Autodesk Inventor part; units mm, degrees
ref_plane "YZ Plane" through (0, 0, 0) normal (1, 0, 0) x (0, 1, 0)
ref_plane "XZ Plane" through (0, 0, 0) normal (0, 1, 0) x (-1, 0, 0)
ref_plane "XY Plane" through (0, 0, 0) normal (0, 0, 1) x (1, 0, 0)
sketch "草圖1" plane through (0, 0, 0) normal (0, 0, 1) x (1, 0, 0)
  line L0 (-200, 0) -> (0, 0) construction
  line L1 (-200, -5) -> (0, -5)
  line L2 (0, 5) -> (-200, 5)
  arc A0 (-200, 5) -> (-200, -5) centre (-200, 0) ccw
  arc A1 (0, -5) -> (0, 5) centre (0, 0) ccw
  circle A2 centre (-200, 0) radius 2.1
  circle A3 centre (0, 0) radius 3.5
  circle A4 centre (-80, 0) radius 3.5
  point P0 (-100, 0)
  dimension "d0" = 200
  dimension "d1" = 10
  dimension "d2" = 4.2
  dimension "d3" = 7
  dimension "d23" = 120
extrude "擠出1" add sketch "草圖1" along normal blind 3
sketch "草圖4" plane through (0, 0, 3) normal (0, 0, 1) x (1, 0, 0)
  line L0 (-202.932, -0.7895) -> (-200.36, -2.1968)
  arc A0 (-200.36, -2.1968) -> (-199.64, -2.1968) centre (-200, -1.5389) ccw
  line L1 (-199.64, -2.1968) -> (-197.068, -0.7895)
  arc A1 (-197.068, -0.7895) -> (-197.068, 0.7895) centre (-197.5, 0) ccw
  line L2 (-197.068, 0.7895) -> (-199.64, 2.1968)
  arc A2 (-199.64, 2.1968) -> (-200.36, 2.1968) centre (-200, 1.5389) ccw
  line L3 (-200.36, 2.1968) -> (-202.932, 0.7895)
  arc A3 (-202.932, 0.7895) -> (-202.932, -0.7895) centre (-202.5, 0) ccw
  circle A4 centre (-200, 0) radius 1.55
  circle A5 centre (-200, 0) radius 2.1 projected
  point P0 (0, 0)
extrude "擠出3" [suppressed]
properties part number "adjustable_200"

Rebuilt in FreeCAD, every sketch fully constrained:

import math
import FreeCAD as App
import Part
import Sketcher

doc = App.newDocument("Part")
params = doc.addObject("Spreadsheet::Sheet", "Params")
for row, (alias, value) in enumerate([
    ("sketch1_diameter", "7 mm"),
    ("sketch1_radius", "5 mm"),
    ("sketch1_diameter2", "4.2 mm"),
    ("sketch1_width", "200 mm"),
    ("pad1_length", "3 mm"),
], start=1):
    params.set(f"A{row}", alias)
    params.set(f"B{row}", "=" + value)
    params.setAlias(f"B{row}", alias)

body = doc.addObject("PartDesign::Body", "Body")

# Sketch on XY plane
sketch1 = doc.addObject("Sketcher::SketchObject", "Sketch")
body.addObject(sketch1)
sketch1.AttachmentSupport = (doc.XY_Plane, [""])
sketch1.MapMode = "FlatFace"
sketch1.addGeometry(Part.ArcOfCircle(Part.Circle(App.Vector(-200, 0, 0), App.Vector(0, 0, 1), 5), math.radians(90), math.radians(270)), False)
sketch1.addGeometry(Part.LineSegment(App.Vector(-200, -5, 0), App.Vector(0, -5, 0)), False)
sketch1.addGeometry(Part.ArcOfCircle(Part.Circle(App.Vector(0, 0, 0), App.Vector(0, 0, 1), 5), math.radians(-90), math.radians(90)), False)
sketch1.addGeometry(Part.LineSegment(App.Vector(0, 5, 0), App.Vector(-200, 5, 0)), False)
sketch1.addGeometry(Part.Circle(App.Vector(-200, 0, 0), App.Vector(0, 0, 1), 2.1), False)
sketch1.addGeometry(Part.Circle(App.Vector(-80, 0, 0), App.Vector(0, 0, 1), 3.5), False)
sketch1.addGeometry(Part.Circle(App.Vector(0, 0, 0), App.Vector(0, 0, 1), 3.5), False)
sketch1.addConstraint(Sketcher.Constraint("Tangent", 0, 2, 1, 1))
sketch1.addConstraint(Sketcher.Constraint("Tangent", 1, 2, 2, 1))
sketch1.addConstraint(Sketcher.Constraint("Tangent", 2, 2, 3, 1))
sketch1.addConstraint(Sketcher.Constraint("Tangent", 3, 2, 0, 1))
sketch1.addConstraint(Sketcher.Constraint("Horizontal", 1))
sketch1.addConstraint(Sketcher.Constraint("Horizontal", 3))
sketch1.addConstraint(Sketcher.Constraint("Coincident", 2, 3, -1, 1))
sketch1.addConstraint(Sketcher.Constraint("Coincident", 6, 3, -1, 1))
sketch1.addConstraint(Sketcher.Constraint("Coincident", 4, 3, 0, 3))
sketch1.addConstraint(Sketcher.Constraint("Equal", 5, 6))
sketch1.addConstraint(Sketcher.Constraint("PointOnObject", 5, 3, -1))
sketch1.addConstraint(Sketcher.Constraint("Diameter", 5, 7.0))
sketch1.addConstraint(Sketcher.Constraint("Radius", 0, 5.0))
sketch1.addConstraint(Sketcher.Constraint("Diameter", 4, 4.2))
sketch1.addConstraint(Sketcher.Constraint("DistanceX", 1, 1, 1, 2, 200.0))
sketch1.addConstraint(Sketcher.Constraint("DistanceX", 0, 3, 5, 3, 120.0))
sketch1.setExpression("Constraints[11]", "Params.sketch1_diameter")
sketch1.setExpression("Constraints[12]", "Params.sketch1_radius")
sketch1.setExpression("Constraints[13]", "Params.sketch1_diameter2")
sketch1.setExpression("Constraints[14]", "Params.sketch1_width")
pad1 = doc.addObject("PartDesign::Pad", "Pad")
body.addObject(pad1)
pad1.Profile = sketch1
pad1.setExpression("Length", "Params.pad1_length")

doc.recompute()
